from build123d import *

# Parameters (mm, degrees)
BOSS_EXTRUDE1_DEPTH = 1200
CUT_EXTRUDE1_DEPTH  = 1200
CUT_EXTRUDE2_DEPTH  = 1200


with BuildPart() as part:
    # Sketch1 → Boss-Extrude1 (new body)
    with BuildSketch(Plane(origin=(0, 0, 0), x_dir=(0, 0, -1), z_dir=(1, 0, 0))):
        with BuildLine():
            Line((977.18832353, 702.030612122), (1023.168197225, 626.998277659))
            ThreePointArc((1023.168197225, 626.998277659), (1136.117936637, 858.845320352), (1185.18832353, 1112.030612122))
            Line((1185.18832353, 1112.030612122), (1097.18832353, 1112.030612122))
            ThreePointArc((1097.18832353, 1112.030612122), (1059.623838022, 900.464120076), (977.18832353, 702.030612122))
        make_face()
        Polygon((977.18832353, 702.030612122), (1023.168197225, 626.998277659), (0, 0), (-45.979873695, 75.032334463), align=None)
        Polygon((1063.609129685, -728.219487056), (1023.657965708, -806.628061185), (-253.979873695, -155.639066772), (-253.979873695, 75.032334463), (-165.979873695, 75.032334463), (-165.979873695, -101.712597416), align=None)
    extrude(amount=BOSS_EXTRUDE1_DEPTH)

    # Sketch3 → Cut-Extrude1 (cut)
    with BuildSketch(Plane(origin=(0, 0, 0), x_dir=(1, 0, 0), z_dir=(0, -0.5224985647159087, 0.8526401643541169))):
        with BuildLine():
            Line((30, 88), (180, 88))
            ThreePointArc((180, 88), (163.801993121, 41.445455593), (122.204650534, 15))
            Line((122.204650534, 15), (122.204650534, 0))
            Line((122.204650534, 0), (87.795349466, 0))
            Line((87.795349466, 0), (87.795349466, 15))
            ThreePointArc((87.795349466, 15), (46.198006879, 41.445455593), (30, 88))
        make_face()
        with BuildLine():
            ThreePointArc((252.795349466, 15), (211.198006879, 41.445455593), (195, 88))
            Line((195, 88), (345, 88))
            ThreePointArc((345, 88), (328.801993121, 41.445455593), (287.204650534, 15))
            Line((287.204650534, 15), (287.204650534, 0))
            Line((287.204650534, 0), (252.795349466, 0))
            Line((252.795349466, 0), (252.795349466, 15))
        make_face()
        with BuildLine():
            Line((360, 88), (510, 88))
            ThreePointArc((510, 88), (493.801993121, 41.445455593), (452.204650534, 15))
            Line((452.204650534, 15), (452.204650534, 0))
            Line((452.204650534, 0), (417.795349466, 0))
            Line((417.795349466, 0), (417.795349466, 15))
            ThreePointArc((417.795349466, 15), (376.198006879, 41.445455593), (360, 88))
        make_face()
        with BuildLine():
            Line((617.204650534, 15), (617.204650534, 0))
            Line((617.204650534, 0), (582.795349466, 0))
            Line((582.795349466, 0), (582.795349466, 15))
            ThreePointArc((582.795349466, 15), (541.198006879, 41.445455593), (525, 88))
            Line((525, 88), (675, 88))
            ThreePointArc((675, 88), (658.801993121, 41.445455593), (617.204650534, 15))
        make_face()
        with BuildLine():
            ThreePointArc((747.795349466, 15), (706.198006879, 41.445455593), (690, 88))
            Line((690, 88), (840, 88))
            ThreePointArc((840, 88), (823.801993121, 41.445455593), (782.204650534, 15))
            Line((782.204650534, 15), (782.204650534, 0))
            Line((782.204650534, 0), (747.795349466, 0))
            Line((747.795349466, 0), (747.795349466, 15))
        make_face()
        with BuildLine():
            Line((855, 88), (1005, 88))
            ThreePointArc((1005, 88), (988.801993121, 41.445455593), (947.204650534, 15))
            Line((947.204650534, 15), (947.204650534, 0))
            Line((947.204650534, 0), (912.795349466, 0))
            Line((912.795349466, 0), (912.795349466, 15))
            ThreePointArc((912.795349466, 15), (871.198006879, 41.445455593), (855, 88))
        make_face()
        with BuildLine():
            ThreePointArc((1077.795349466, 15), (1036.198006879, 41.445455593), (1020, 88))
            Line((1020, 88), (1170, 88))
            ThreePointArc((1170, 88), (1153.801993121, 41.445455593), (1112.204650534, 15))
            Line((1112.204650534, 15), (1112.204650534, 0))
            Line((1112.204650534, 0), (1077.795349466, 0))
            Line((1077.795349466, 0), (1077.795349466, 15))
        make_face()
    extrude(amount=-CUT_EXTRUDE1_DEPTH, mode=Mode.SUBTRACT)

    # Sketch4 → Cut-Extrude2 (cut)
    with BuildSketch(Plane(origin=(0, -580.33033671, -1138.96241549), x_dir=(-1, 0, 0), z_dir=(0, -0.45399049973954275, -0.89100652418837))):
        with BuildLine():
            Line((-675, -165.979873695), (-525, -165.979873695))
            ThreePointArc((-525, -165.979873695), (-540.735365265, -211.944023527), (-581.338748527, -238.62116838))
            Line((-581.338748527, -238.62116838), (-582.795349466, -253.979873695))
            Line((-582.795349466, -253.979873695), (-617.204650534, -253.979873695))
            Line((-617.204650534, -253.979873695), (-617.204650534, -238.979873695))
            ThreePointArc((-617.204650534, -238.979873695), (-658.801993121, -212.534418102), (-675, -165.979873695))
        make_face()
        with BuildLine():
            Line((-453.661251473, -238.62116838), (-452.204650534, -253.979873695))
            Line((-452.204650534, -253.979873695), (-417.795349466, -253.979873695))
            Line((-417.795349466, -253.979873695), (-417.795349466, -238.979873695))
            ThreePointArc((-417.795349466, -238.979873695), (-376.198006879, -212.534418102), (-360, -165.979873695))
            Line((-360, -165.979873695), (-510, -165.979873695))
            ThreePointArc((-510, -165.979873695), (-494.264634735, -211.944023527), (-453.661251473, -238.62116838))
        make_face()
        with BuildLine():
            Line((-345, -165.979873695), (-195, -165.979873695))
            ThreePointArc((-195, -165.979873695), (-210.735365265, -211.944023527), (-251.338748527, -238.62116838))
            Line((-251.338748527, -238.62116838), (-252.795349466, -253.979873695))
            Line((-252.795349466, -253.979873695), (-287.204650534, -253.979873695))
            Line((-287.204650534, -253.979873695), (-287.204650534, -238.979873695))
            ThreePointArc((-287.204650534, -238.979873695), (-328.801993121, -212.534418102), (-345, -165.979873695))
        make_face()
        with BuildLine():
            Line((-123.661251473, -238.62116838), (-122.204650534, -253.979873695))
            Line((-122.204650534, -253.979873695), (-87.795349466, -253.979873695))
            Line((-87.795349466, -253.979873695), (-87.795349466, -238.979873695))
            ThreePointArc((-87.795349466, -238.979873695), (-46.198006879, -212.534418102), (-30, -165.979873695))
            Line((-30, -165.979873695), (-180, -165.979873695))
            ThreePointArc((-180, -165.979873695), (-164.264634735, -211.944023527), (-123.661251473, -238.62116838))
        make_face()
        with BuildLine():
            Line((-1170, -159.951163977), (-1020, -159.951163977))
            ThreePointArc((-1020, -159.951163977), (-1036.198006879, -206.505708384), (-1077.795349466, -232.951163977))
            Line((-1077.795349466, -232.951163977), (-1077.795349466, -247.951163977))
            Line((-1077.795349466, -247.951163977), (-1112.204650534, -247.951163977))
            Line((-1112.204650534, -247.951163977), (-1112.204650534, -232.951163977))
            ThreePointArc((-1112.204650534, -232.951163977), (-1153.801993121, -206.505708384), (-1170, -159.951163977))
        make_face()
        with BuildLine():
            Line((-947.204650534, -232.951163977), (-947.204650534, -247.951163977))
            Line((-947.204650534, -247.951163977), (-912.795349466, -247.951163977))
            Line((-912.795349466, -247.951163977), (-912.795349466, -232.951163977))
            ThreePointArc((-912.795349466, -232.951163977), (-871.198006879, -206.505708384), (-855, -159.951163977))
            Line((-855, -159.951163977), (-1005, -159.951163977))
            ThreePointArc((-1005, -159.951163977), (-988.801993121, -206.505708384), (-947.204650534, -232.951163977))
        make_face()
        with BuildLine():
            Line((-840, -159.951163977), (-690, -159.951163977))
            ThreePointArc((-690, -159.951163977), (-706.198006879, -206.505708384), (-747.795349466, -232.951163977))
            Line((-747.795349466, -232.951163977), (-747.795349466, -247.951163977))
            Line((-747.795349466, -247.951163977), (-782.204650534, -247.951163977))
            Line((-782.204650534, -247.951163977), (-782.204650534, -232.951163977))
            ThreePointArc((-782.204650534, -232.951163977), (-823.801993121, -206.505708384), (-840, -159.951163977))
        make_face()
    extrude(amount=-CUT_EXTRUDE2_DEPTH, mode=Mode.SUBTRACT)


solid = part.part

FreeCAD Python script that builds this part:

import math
import FreeCAD as App
import Part
import Sketcher
from FreeCAD import Vector
Q = App.Units.Quantity


def add_polygon(sketch, points):
    """Adds a closed chain of lines whose ends are joined by coincident constraints."""
    first, n = sketch.GeometryCount, len(points)
    for a, b in zip(points, points[1:] + points[:1]):
        sketch.addGeometry(Part.LineSegment(App.Vector(*a, 0), App.Vector(*b, 0)), False)
    for i in range(n):
        sketch.addConstraint(Sketcher.Constraint("Coincident", first + i, 2, first + (i + 1) % n, 1))

doc = App.newDocument("Part")
body = doc.addObject("PartDesign::Body", "Body")
body.AllowCompound = True

# Sketch on YZ plane
sketch1 = body.newObject("Sketcher::SketchObject", "Sketch")
sketch1.AttachmentSupport = (doc.getObject("YZ_Plane"), [""])
sketch1.MapMode = "FlatFace"
sketch1.addGeometry(Part.ArcOfCircle(Part.Circle(Vector(1171.732312, -199.442283, 0), Vector(0, 0, 1), 987.552302), math.radians(-123.476862), math.radians(-93.465885)), False)  # 0
sketch1.addGeometry(Part.LineSegment(Vector(1112.030612, -1185.188324, 0), Vector(1112.030612, -1097.188324, 0)), False)  # 1
sketch1.addGeometry(Part.ArcOfCircle(Part.Circle(Vector(1177.866331, -111.832952, 0), Vector(0, 0, 1), 987.552302), math.radians(-118.805215), math.radians(-93.82249)), False)  # 2
sketch1.addGeometry(Part.LineSegment(Vector(702.030612, -977.188324, 0), Vector(75.032334, 45.979874, 0)), False)  # 3
sketch1.addGeometry(Part.LineSegment(Vector(75.032334, 45.979874, 0), Vector(0, 0, 0)), False)  # 4
sketch1.addGeometry(Part.LineSegment(Vector(0, 0, 0), Vector(626.998278, -1023.168197, 0)), False)  # 5
add_polygon(sketch1, [(-806.628061, -1023.657966), (-728.219487, -1063.60913), (-101.712597, 165.979874), (75.032334, 165.979874), (75.032334, 253.979874), (-155.639067, 253.979874)])  # lines 6-11
sketch1.addConstraint([
    Sketcher.Constraint("Coincident", 0, 2, 1, 1),
    Sketcher.Constraint("Coincident", 1, 2, 2, 2),
    Sketcher.Constraint("Coincident", 2, 1, 3, 1),
    Sketcher.Constraint("Coincident", 3, 2, 4, 1),
    Sketcher.Constraint("Coincident", 4, 2, 5, 1),
    Sketcher.Constraint("Coincident", 5, 2, 0, 1),
    Sketcher.Constraint("Vertical", 1),
    Sketcher.Constraint("Horizontal", 8),
    Sketcher.Constraint("Vertical", 9),
    Sketcher.Constraint("Horizontal", 10),
    Sketcher.Constraint("Coincident", 4, 2, -1, 1),
    Sketcher.Constraint("Equal", 0, 2),
    Sketcher.Constraint("Perpendicular", 3, 4),
    Sketcher.Constraint("Perpendicular", 4, 5),
    Sketcher.Constraint("Perpendicular", 6, 7),
    Sketcher.Constraint("Parallel", 7, 11),
    Sketcher.Constraint("Vertical", 3, 2, 8, 2),
    Sketcher.Constraint("Equal", 1, 9),
    Sketcher.Constraint("Equal", 3, 5),
    Sketcher.Constraint("Equal", 4, 6),
    Sketcher.Constraint("DistanceY", 1, 1, 1, 2, 88.0),
    Sketcher.Constraint("Angle", 6, Q("-27 deg")),
    Sketcher.Constraint("Distance", 3, 1200.0),
    Sketcher.Constraint("Distance", 4, 88.0),
    Sketcher.Constraint("Distance", 7, 1380.0),
    Sketcher.Constraint("Angle", 3, Q("121.5 deg")),
    Sketcher.Constraint("DistanceY", 3, 2, 7, 2, 120.0),
    Sketcher.Constraint("DistanceX", 10, 2, 10, 1, 230.671401),
    Sketcher.Constraint("Radius", 0, 987.552302),
    Sketcher.Constraint("DistanceX", 1, 2, 0, 3, 59.701699),
    Sketcher.Constraint("DistanceX", 6, 2, 1, 2, 1840.250099),
])
pad1 = body.newObject("PartDesign::Pad", "Pad")
pad1.Profile = sketch1
pad1.Length = 1200

# Sketch on an angled plane
sketch2 = body.newObject("Sketcher::SketchObject", "Sketch001")
sketch2.Placement = App.Placement(Vector(0, 0, 0), App.Rotation(Vector(1, 0, 0), Vector(0, 0.852640164, 0.522498565), Vector(0, -0.522498565, 0.852640164), "ZXY"))
sketch2.addGeometry([
    Part.LineSegment(Vector(180, 88, 0), Vector(30, 88, 0)),  # 0
    Part.ArcOfCircle(Part.Circle(Vector(105, 88, 0), Vector(0, 0, 1), 75), math.radians(-180), math.radians(-103.261476)),  # 1
    Part.LineSegment(Vector(87.795349, 15, 0), Vector(87.795349, 0, 0)),  # 2
    Part.LineSegment(Vector(87.795349, 0, 0), Vector(122.204651, 0, 0)),  # 3
    Part.LineSegment(Vector(122.204651, 0, 0), Vector(122.204651, 15, 0)),  # 4
    Part.ArcOfCircle(Part.Circle(Vector(105, 88, 0), Vector(0, 0, 1), 75), math.radians(-76.738524), math.radians(0)),  # 5
    Part.ArcOfCircle(Part.Circle(Vector(270, 88, 0), Vector(0, 0, 1), 75), math.radians(-180), math.radians(-103.261476)),  # 6
    Part.LineSegment(Vector(252.795349, 15, 0), Vector(252.795349, 0, 0)),  # 7
    Part.LineSegment(Vector(252.795349, 0, 0), Vector(287.204651, 0, 0)),  # 8
    Part.LineSegment(Vector(287.204651, 0, 0), Vector(287.204651, 15, 0)),  # 9
    Part.ArcOfCircle(Part.Circle(Vector(270, 88, 0), Vector(0, 0, 1), 75), math.radians(-76.738524), math.radians(0)),  # 10
    Part.LineSegment(Vector(345, 88, 0), Vector(195, 88, 0)),  # 11
    Part.LineSegment(Vector(510, 88, 0), Vector(360, 88, 0)),  # 12
    Part.ArcOfCircle(Part.Circle(Vector(435, 88, 0), Vector(0, 0, 1), 75), math.radians(-180), math.radians(-103.261476)),  # 13
    Part.LineSegment(Vector(417.795349, 15, 0), Vector(417.795349, 0, 0)),  # 14
    Part.LineSegment(Vector(417.795349, 0, 0), Vector(452.204651, 0, 0)),  # 15
    Part.LineSegment(Vector(452.204651, 0, 0), Vector(452.204651, 15, 0)),  # 16
    Part.ArcOfCircle(Part.Circle(Vector(435, 88, 0), Vector(0, 0, 1), 75), math.radians(-76.738524), math.radians(0)),  # 17
    Part.LineSegment(Vector(617.204651, 0, 0), Vector(617.204651, 15, 0)),  # 18
    Part.ArcOfCircle(Part.Circle(Vector(600, 88, 0), Vector(0, 0, 1), 75), math.radians(-76.738524), math.radians(0)),  # 19
    Part.LineSegment(Vector(675, 88, 0), Vector(525, 88, 0)),  # 20
    Part.ArcOfCircle(Part.Circle(Vector(600, 88, 0), Vector(0, 0, 1), 75), math.radians(-180), math.radians(-103.261476)),  # 21
    Part.LineSegment(Vector(582.795349, 15, 0), Vector(582.795349, 0, 0)),  # 22
    Part.LineSegment(Vector(582.795349, 0, 0), Vector(617.204651, 0, 0)),  # 23
    Part.ArcOfCircle(Part.Circle(Vector(765, 88, 0), Vector(0, 0, 1), 75), math.radians(-180), math.radians(-103.261476)),  # 24
    Part.LineSegment(Vector(747.795349, 15, 0), Vector(747.795349, 0, 0)),  # 25
    Part.LineSegment(Vector(747.795349, 0, 0), Vector(782.204651, 0, 0)),  # 26
    Part.LineSegment(Vector(782.204651, 0, 0), Vector(782.204651, 15, 0)),  # 27
    Part.ArcOfCircle(Part.Circle(Vector(765, 88, 0), Vector(0, 0, 1), 75), math.radians(-76.738524), math.radians(0)),  # 28
    Part.LineSegment(Vector(840, 88, 0), Vector(690, 88, 0)),  # 29
    Part.LineSegment(Vector(1005, 88, 0), Vector(855, 88, 0)),  # 30
    Part.ArcOfCircle(Part.Circle(Vector(930, 88, 0), Vector(0, 0, 1), 75), math.radians(-180), math.radians(-103.261476)),  # 31
    Part.LineSegment(Vector(912.795349, 15, 0), Vector(912.795349, 0, 0)),  # 32
    Part.LineSegment(Vector(912.795349, 0, 0), Vector(947.204651, 0, 0)),  # 33
    Part.LineSegment(Vector(947.204651, 0, 0), Vector(947.204651, 15, 0)),  # 34
    Part.ArcOfCircle(Part.Circle(Vector(930, 88, 0), Vector(0, 0, 1), 75), math.radians(-76.738524), math.radians(0)),  # 35
    Part.ArcOfCircle(Part.Circle(Vector(1095, 88, 0), Vector(0, 0, 1), 75), math.radians(-180), math.radians(-103.261476)),  # 36
    Part.LineSegment(Vector(1077.795349, 15, 0), Vector(1077.795349, 0, 0)),  # 37
    Part.LineSegment(Vector(1077.795349, 0, 0), Vector(1112.204651, 0, 0)),  # 38
    Part.LineSegment(Vector(1112.204651, 0, 0), Vector(1112.204651, 15, 0)),  # 39
    Part.ArcOfCircle(Part.Circle(Vector(1095, 88, 0), Vector(0, 0, 1), 75), math.radians(-76.738524), math.radians(0)),  # 40
    Part.LineSegment(Vector(1170, 88, 0), Vector(1020, 88, 0)),  # 41
], False)
sketch2.addConstraint([
    Sketcher.Constraint("Coincident", 0, 2, 1, 1),
    Sketcher.Constraint("Coincident", 1, 2, 2, 1),
    Sketcher.Constraint("Coincident", 2, 2, 3, 1),
    Sketcher.Constraint("Coincident", 3, 2, 4, 1),
    Sketcher.Constraint("Coincident", 4, 2, 5, 1),
    Sketcher.Constraint("Coincident", 5, 2, 0, 1),
    Sketcher.Constraint("Coincident", 6, 2, 7, 1),
    Sketcher.Constraint("Coincident", 7, 2, 8, 1),
    Sketcher.Constraint("Coincident", 8, 2, 9, 1),
    Sketcher.Constraint("Coincident", 9, 2, 10, 1),
    Sketcher.Constraint("Coincident", 10, 2, 11, 1),
    Sketcher.Constraint("Coincident", 11, 2, 6, 1),
    Sketcher.Constraint("Coincident", 12, 2, 13, 1),
    Sketcher.Constraint("Coincident", 13, 2, 14, 1),
    Sketcher.Constraint("Coincident", 14, 2, 15, 1),
    Sketcher.Constraint("Coincident", 15, 2, 16, 1),
    Sketcher.Constraint("Coincident", 16, 2, 17, 1),
    Sketcher.Constraint("Coincident", 17, 2, 12, 1),
    Sketcher.Constraint("Coincident", 18, 2, 19, 1),
    Sketcher.Constraint("Coincident", 19, 2, 20, 1),
    Sketcher.Constraint("Coincident", 20, 2, 21, 1),
    Sketcher.Constraint("Coincident", 21, 2, 22, 1),
    Sketcher.Constraint("Coincident", 22, 2, 23, 1),
    Sketcher.Constraint("Coincident", 23, 2, 18, 1),
    Sketcher.Constraint("Coincident", 24, 2, 25, 1),
    Sketcher.Constraint("Coincident", 25, 2, 26, 1),
    Sketcher.Constraint("Coincident", 26, 2, 27, 1),
    Sketcher.Constraint("Coincident", 27, 2, 28, 1),
    Sketcher.Constraint("Coincident", 28, 2, 29, 1),
    Sketcher.Constraint("Coincident", 29, 2, 24, 1),
    Sketcher.Constraint("Coincident", 30, 2, 31, 1),
    Sketcher.Constraint("Coincident", 31, 2, 32, 1),
    Sketcher.Constraint("Coincident", 32, 2, 33, 1),
    Sketcher.Constraint("Coincident", 33, 2, 34, 1),
    Sketcher.Constraint("Coincident", 34, 2, 35, 1),
    Sketcher.Constraint("Coincident", 35, 2, 30, 1),
    Sketcher.Constraint("Coincident", 36, 2, 37, 1),
    Sketcher.Constraint("Coincident", 37, 2, 38, 1),
    Sketcher.Constraint("Coincident", 38, 2, 39, 1),
    Sketcher.Constraint("Coincident", 39, 2, 40, 1),
    Sketcher.Constraint("Coincident", 40, 2, 41, 1),
    Sketcher.Constraint("Coincident", 41, 2, 36, 1),
    Sketcher.Constraint("Horizontal", 0),
    Sketcher.Constraint("Vertical", 2),
    Sketcher.Constraint("Horizontal", 3),
    Sketcher.Constraint("Vertical", 4),
    Sketcher.Constraint("Vertical", 7),
    Sketcher.Constraint("Horizontal", 8),
    Sketcher.Constraint("Vertical", 9),
    Sketcher.Constraint("Horizontal", 11),
    Sketcher.Constraint("Horizontal", 12),
    Sketcher.Constraint("Vertical", 14),
    Sketcher.Constraint("Horizontal", 15),
    Sketcher.Constraint("Vertical", 16),
    Sketcher.Constraint("Vertical", 18),
    Sketcher.Constraint("Horizontal", 20),
    Sketcher.Constraint("Vertical", 22),
    Sketcher.Constraint("Horizontal", 23),
    Sketcher.Constraint("Vertical", 25),
    Sketcher.Constraint("Horizontal", 26),
    Sketcher.Constraint("Vertical", 27),
    Sketcher.Constraint("Horizontal", 29),
    Sketcher.Constraint("Horizontal", 30),
    Sketcher.Constraint("Vertical", 32),
    Sketcher.Constraint("Horizontal", 33),
    Sketcher.Constraint("Vertical", 34),
    Sketcher.Constraint("Vertical", 37),
    Sketcher.Constraint("Horizontal", 38),
    Sketcher.Constraint("Vertical", 39),
    Sketcher.Constraint("Horizontal", 41),
    Sketcher.Constraint("Coincident", 5, 3, 1, 3),
    Sketcher.Constraint("Coincident", 10, 3, 6, 3),
    Sketcher.Constraint("Coincident", 17, 3, 13, 3),
    Sketcher.Constraint("Coincident", 21, 3, 19, 3),
    Sketcher.Constraint("Coincident", 28, 3, 24, 3),
    Sketcher.Constraint("Coincident", 35, 3, 31, 3),
    Sketcher.Constraint("Coincident", 40, 3, 36, 3),
    Sketcher.Constraint("Equal", 1, 5),
    Sketcher.Constraint("Equal", 5, 6),
    Sketcher.Constraint("Equal", 6, 10),
    Sketcher.Constraint("Equal", 10, 13),
    Sketcher.Constraint("Equal", 13, 17),
    Sketcher.Constraint("Equal", 17, 19),
    Sketcher.Constraint("Equal", 19, 21),
    Sketcher.Constraint("Equal", 21, 24),
    Sketcher.Constraint("Equal", 24, 28),
    Sketcher.Constraint("Equal", 28, 31),
    Sketcher.Constraint("Equal", 31, 35),
    Sketcher.Constraint("Equal", 35, 36),
    Sketcher.Constraint("Equal", 36, 40),
    Sketcher.Constraint("PointOnObject", 2, 2, -1),
    Sketcher.Constraint("PointOnObject", 7, 2, -1),
    Sketcher.Constraint("PointOnObject", 14, 2, -1),
    Sketcher.Constraint("PointOnObject", 22, 2, -1),
    Sketcher.Constraint("PointOnObject", 25, 2, -1),
    Sketcher.Constraint("PointOnObject", 32, 2, -1),
    Sketcher.Constraint("PointOnObject", 37, 2, -1),
    Sketcher.Constraint("Horizontal", 5, 3, 6, 3),
    Sketcher.Constraint("Horizontal", 10, 3, 13, 3),
    Sketcher.Constraint("Horizontal", 17, 3, 19, 3),
    Sketcher.Constraint("Horizontal", 21, 3, 24, 3),
    Sketcher.Constraint("Horizontal", 28, 3, 31, 3),
    Sketcher.Constraint("Horizontal", 35, 3, 36, 3),
    Sketcher.Constraint("Horizontal", 40, 3, 0, 2),
    Sketcher.Constraint("Horizontal", 1, 2, 4, 2),
    Sketcher.Constraint("Horizontal", 4, 2, 6, 2),
    Sketcher.Constraint("Horizontal", 6, 2, 9, 2),
    Sketcher.Constraint("Horizontal", 5, 2, 10, 2),
    Sketcher.Constraint("Horizontal", 11, 2, 12, 2),
    Sketcher.Constraint("Horizontal", 9, 2, 13, 2),
    Sketcher.Constraint("Horizontal", 13, 2, 16, 2),
    Sketcher.Constraint("Horizontal", 16, 2, 18, 2),
    Sketcher.Constraint("Horizontal", 17, 2, 19, 2),
    Sketcher.Constraint("Horizontal", 18, 2, 21, 2),
    Sketcher.Constraint("Horizontal", 21, 2, 24, 2),
    Sketcher.Constraint("Horizontal", 24, 2, 27, 2),
    Sketcher.Constraint("Horizontal", 20, 2, 28, 2),
    Sketcher.Constraint("Horizontal", 29, 2, 30, 2),
    Sketcher.Constraint("Horizontal", 27, 2, 31, 2),
    Sketcher.Constraint("Horizontal", 31, 2, 34, 2),
    Sketcher.Constraint("Horizontal", 34, 2, 36, 2),
    Sketcher.Constraint("Horizontal", 36, 2, 39, 2),
    Sketcher.Constraint("Horizontal", 35, 2, 40, 2),
    Sketcher.Constraint("Radius", 1, 75.0),
    Sketcher.Constraint("DistanceY", 2, 2, 2, 1, 15.0),
    Sketcher.Constraint("DistanceX", -1, 1, 1, 3, 105.0),
    Sketcher.Constraint("DistanceY", -1, 1, 1, 3, 88.0),
    Sketcher.Constraint("DistanceX", -1, 1, 6, 3, 270.0),
    Sketcher.Constraint("DistanceX", -1, 1, 13, 3, 435.0),
    Sketcher.Constraint("DistanceX", -1, 1, 19, 3, 600.0),
    Sketcher.Constraint("DistanceX", -1, 1, 24, 3, 765.0),
    Sketcher.Constraint("DistanceX", -1, 1, 31, 3, 930.0),
    Sketcher.Constraint("DistanceX", -1, 1, 36, 3, 1095.0),
])
pocket1 = body.newObject("PartDesign::Pocket", "Pocket")
pocket1.Profile = sketch2
pocket1.Length = 1200

# Sketch on an angled plane
sketch3 = body.newObject("Sketcher::SketchObject", "Sketch002")
sketch3.Placement = App.Placement(Vector(0, -580.330337, -1138.962415), App.Rotation(Vector(-1, 0, 0), Vector(0, 0.891006524, -0.4539905), Vector(0, -0.4539905, -0.891006524), "ZXY"))
sketch3.addGeometry([
    Part.LineSegment(Vector(-525, -165.979874, 0), Vector(-675, -165.979874, 0)),  # 0
    Part.ArcOfCircle(Part.Circle(Vector(-600, -165.979874, 0), Vector(0, 0, 1), 75), math.radians(-180), math.radians(-103.261476)),  # 1
    Part.LineSegment(Vector(-617.204651, -238.979874, 0), Vector(-617.204651, -253.979874, 0)),  # 2
    Part.LineSegment(Vector(-617.204651, -253.979874, 0), Vector(-582.795349, -253.979874, 0)),  # 3
    Part.LineSegment(Vector(-582.795349, -253.979874, 0), Vector(-581.338749, -238.621168, 0)),  # 4
    Part.ArcOfCircle(Part.Circle(Vector(-600, -165.979874, 0), Vector(0, 0, 1), 75), math.radians(-75.592499), math.radians(0)),  # 5
    Part.LineSegment(Vector(-453.661251, -238.621168, 0), Vector(-452.204651, -253.979874, 0)),  # 6
    Part.LineSegment(Vector(-452.204651, -253.979874, 0), Vector(-417.795349, -253.979874, 0)),  # 7
    Part.LineSegment(Vector(-417.795349, -253.979874, 0), Vector(-417.795349, -238.979874, 0)),  # 8
    Part.ArcOfCircle(Part.Circle(Vector(-435, -165.979874, 0), Vector(0, 0, 1), 75), math.radians(-76.738524), math.radians(0)),  # 9
    Part.LineSegment(Vector(-360, -165.979874, 0), Vector(-510, -165.979874, 0)),  # 10
    Part.ArcOfCircle(Part.Circle(Vector(-435, -165.979874, 0), Vector(0, 0, 1), 75), math.radians(180), math.radians(255.592499)),  # 11
    Part.LineSegment(Vector(-195, -165.979874, 0), Vector(-345, -165.979874, 0)),  # 12
    Part.ArcOfCircle(Part.Circle(Vector(-270, -165.979874, 0), Vector(0, 0, 1), 75), math.radians(-180), math.radians(-103.261476)),  # 13
    Part.LineSegment(Vector(-287.204651, -238.979874, 0), Vector(-287.204651, -253.979874, 0)),  # 14
    Part.LineSegment(Vector(-287.204651, -253.979874, 0), Vector(-252.795349, -253.979874, 0)),  # 15
    Part.LineSegment(Vector(-252.795349, -253.979874, 0), Vector(-251.338749, -238.621168, 0)),  # 16
    Part.ArcOfCircle(Part.Circle(Vector(-270, -165.979874, 0), Vector(0, 0, 1), 75), math.radians(-75.592499), math.radians(0)),  # 17
    Part.LineSegment(Vector(-123.661251, -238.621168, 0), Vector(-122.204651, -253.979874, 0)),  # 18
    Part.LineSegment(Vector(-122.204651, -253.979874, 0), Vector(-87.795349, -253.979874, 0)),  # 19
    Part.LineSegment(Vector(-87.795349, -253.979874, 0), Vector(-87.795349, -238.979874, 0)),  # 20
    Part.ArcOfCircle(Part.Circle(Vector(-105, -165.979874, 0), Vector(0, 0, 1), 75), math.radians(-76.738524), math.radians(0)),  # 21
    Part.LineSegment(Vector(-30, -165.979874, 0), Vector(-180, -165.979874, 0)),  # 22
    Part.ArcOfCircle(Part.Circle(Vector(-105, -165.979874, 0), Vector(0, 0, 1), 75), math.radians(180), math.radians(255.592499)),  # 23
    Part.LineSegment(Vector(-1020, -159.951164, 0), Vector(-1170, -159.951164, 0)),  # 24
    Part.ArcOfCircle(Part.Circle(Vector(-1095, -159.951164, 0), Vector(0, 0, 1), 75), math.radians(-180), math.radians(-103.261476)),  # 25
    Part.LineSegment(Vector(-1112.204651, -232.951164, 0), Vector(-1112.204651, -247.951164, 0)),  # 26
    Part.LineSegment(Vector(-1112.204651, -247.951164, 0), Vector(-1077.795349, -247.951164, 0)),  # 27
    Part.LineSegment(Vector(-1077.795349, -247.951164, 0), Vector(-1077.795349, -232.951164, 0)),  # 28
    Part.ArcOfCircle(Part.Circle(Vector(-1095, -159.951164, 0), Vector(0, 0, 1), 75), math.radians(-76.738524), math.radians(0)),  # 29
    Part.LineSegment(Vector(-947.204651, -232.951164, 0), Vector(-947.204651, -247.951164, 0)),  # 30
    Part.LineSegment(Vector(-947.204651, -247.951164, 0), Vector(-912.795349, -247.951164, 0)),  # 31
    Part.LineSegment(Vector(-912.795349, -247.951164, 0), Vector(-912.795349, -232.951164, 0)),  # 32
    Part.ArcOfCircle(Part.Circle(Vector(-930, -159.951164, 0), Vector(0, 0, 1), 75), math.radians(-76.738524), math.radians(0)),  # 33
    Part.LineSegment(Vector(-855, -159.951164, 0), Vector(-1005, -159.951164, 0)),  # 34
    Part.ArcOfCircle(Part.Circle(Vector(-930, -159.951164, 0), Vector(0, 0, 1), 75), math.radians(-180), math.radians(-103.261476)),  # 35
    Part.LineSegment(Vector(-690, -159.951164, 0), Vector(-840, -159.951164, 0)),  # 36
    Part.ArcOfCircle(Part.Circle(Vector(-765, -159.951164, 0), Vector(0, 0, 1), 75), math.radians(-180), math.radians(-103.261476)),  # 37
    Part.LineSegment(Vector(-782.204651, -232.951164, 0), Vector(-782.204651, -247.951164, 0)),  # 38
    Part.LineSegment(Vector(-782.204651, -247.951164, 0), Vector(-747.795349, -247.951164, 0)),  # 39
    Part.LineSegment(Vector(-747.795349, -247.951164, 0), Vector(-747.795349, -232.951164, 0)),  # 40
    Part.ArcOfCircle(Part.Circle(Vector(-765, -159.951164, 0), Vector(0, 0, 1), 75), math.radians(-76.738524), math.radians(0)),  # 41
], False)
sketch3.addConstraint([
    Sketcher.Constraint("Coincident", 0, 2, 1, 1),
    Sketcher.Constraint("Coincident", 1, 2, 2, 1),
    Sketcher.Constraint("Coincident", 2, 2, 3, 1),
    Sketcher.Constraint("Coincident", 3, 2, 4, 1),
    Sketcher.Constraint("Coincident", 4, 2, 5, 1),
    Sketcher.Constraint("Coincident", 5, 2, 0, 1),
    Sketcher.Constraint("Coincident", 6, 2, 7, 1),
    Sketcher.Constraint("Coincident", 7, 2, 8, 1),
    Sketcher.Constraint("Coincident", 8, 2, 9, 1),
    Sketcher.Constraint("Coincident", 9, 2, 10, 1),
    Sketcher.Constraint("Coincident", 10, 2, 11, 1),
    Sketcher.Constraint("Coincident", 11, 2, 6, 1),
    Sketcher.Constraint("Coincident", 12, 2, 13, 1),
    Sketcher.Constraint("Coincident", 13, 2, 14, 1),
    Sketcher.Constraint("Coincident", 14, 2, 15, 1),
    Sketcher.Constraint("Coincident", 15, 2, 16, 1),
    Sketcher.Constraint("Coincident", 16, 2, 17, 1),
    Sketcher.Constraint("Coincident", 17, 2, 12, 1),
    Sketcher.Constraint("Coincident", 18, 2, 19, 1),
    Sketcher.Constraint("Coincident", 19, 2, 20, 1),
    Sketcher.Constraint("Coincident", 20, 2, 21, 1),
    Sketcher.Constraint("Coincident", 21, 2, 22, 1),
    Sketcher.Constraint("Coincident", 22, 2, 23, 1),
    Sketcher.Constraint("Coincident", 23, 2, 18, 1),
    Sketcher.Constraint("Coincident", 24, 2, 25, 1),
    Sketcher.Constraint("Coincident", 25, 2, 26, 1),
    Sketcher.Constraint("Coincident", 26, 2, 27, 1),
    Sketcher.Constraint("Coincident", 27, 2, 28, 1),
    Sketcher.Constraint("Coincident", 28, 2, 29, 1),
    Sketcher.Constraint("Coincident", 29, 2, 24, 1),
    Sketcher.Constraint("Coincident", 30, 2, 31, 1),
    Sketcher.Constraint("Coincident", 31, 2, 32, 1),
    Sketcher.Constraint("Coincident", 32, 2, 33, 1),
    Sketcher.Constraint("Coincident", 33, 2, 34, 1),
    Sketcher.Constraint("Coincident", 34, 2, 35, 1),
    Sketcher.Constraint("Coincident", 35, 2, 30, 1),
    Sketcher.Constraint("Coincident", 36, 2, 37, 1),
    Sketcher.Constraint("Coincident", 37, 2, 38, 1),
    Sketcher.Constraint("Coincident", 38, 2, 39, 1),
    Sketcher.Constraint("Coincident", 39, 2, 40, 1),
    Sketcher.Constraint("Coincident", 40, 2, 41, 1),
    Sketcher.Constraint("Coincident", 41, 2, 36, 1),
    Sketcher.Constraint("Horizontal", 0),
    Sketcher.Constraint("Vertical", 2),
    Sketcher.Constraint("Horizontal", 3),
    Sketcher.Constraint("Horizontal", 7),
    Sketcher.Constraint("Vertical", 8),
    Sketcher.Constraint("Horizontal", 10),
    Sketcher.Constraint("Horizontal", 12),
    Sketcher.Constraint("Vertical", 14),
    Sketcher.Constraint("Horizontal", 15),
    Sketcher.Constraint("Horizontal", 19),
    Sketcher.Constraint("Vertical", 20),
    Sketcher.Constraint("Horizontal", 22),
    Sketcher.Constraint("Horizontal", 24),
    Sketcher.Constraint("Vertical", 26),
    Sketcher.Constraint("Horizontal", 27),
    Sketcher.Constraint("Vertical", 28),
    Sketcher.Constraint("Vertical", 30),
    Sketcher.Constraint("Horizontal", 31),
    Sketcher.Constraint("Vertical", 32),
    Sketcher.Constraint("Horizontal", 34),
    Sketcher.Constraint("Horizontal", 36),
    Sketcher.Constraint("Vertical", 38),
    Sketcher.Constraint("Horizontal", 39),
    Sketcher.Constraint("Vertical", 40),
    Sketcher.Constraint("Coincident", 5, 3, 1, 3),
    Sketcher.Constraint("Coincident", 11, 3, 9, 3),
    Sketcher.Constraint("Coincident", 17, 3, 13, 3),
    Sketcher.Constraint("Coincident", 23, 3, 21, 3),
    Sketcher.Constraint("Coincident", 29, 3, 25, 3),
    Sketcher.Constraint("Coincident", 35, 3, 33, 3),
    Sketcher.Constraint("Coincident", 41, 3, 37, 3),
    Sketcher.Constraint("Equal", 1, 5),
    Sketcher.Constraint("Equal", 5, 9),
    Sketcher.Constraint("Equal", 9, 11),
    Sketcher.Constraint("Equal", 11, 13),
    Sketcher.Constraint("Equal", 13, 17),
    Sketcher.Constraint("Equal", 17, 21),
    Sketcher.Constraint("Equal", 21, 23),
    Sketcher.Constraint("Equal", 23, 25),
    Sketcher.Constraint("Equal", 25, 29),
    Sketcher.Constraint("Equal", 29, 33),
    Sketcher.Constraint("Equal", 33, 35),
    Sketcher.Constraint("Equal", 35, 37),
    Sketcher.Constraint("Equal", 37, 41),
    Sketcher.Constraint("Parallel", 4, 16),
    Sketcher.Constraint("Parallel", 6, 18),
    Sketcher.Constraint("Horizontal", 5, 3, 9, 3),
    Sketcher.Constraint("Horizontal", 11, 3, 13, 3),
    Sketcher.Constraint("Horizontal", 17, 3, 21, 3),
    Sketcher.Constraint("Horizontal", 29, 3, 33, 3),
    Sketcher.Constraint("Horizontal", 35, 3, 37, 3),
    Sketcher.Constraint("Horizontal", 23, 3, 0, 2),
    Sketcher.Constraint("Horizontal", 3, 2, 6, 2),
    Sketcher.Constraint("Horizontal", 1, 2, 8, 2),
    Sketcher.Constraint("Horizontal", 5, 2, 9, 2),
    Sketcher.Constraint("Horizontal", 4, 2, 11, 2),
    Sketcher.Constraint("Horizontal", 10, 2, 12, 2),
    Sketcher.Constraint("Horizontal", 8, 2, 13, 2),
    Sketcher.Constraint("Horizontal", 7, 2, 14, 2),
    Sketcher.Constraint("Horizontal", 11, 2, 16, 2),
    Sketcher.Constraint("Horizontal", 15, 2, 18, 2),
    Sketcher.Constraint("Horizontal", 13, 2, 20, 2),
    Sketcher.Constraint("Horizontal", 17, 2, 21, 2),
    Sketcher.Constraint("Horizontal", 16, 2, 23, 2),
    Sketcher.Constraint("Horizontal", 41, 3, 24, 2),
    Sketcher.Constraint("Horizontal", 25, 2, 28, 2),
    Sketcher.Constraint("Horizontal", 27, 2, 30, 2),
    Sketcher.Constraint("Horizontal", 28, 2, 32, 2),
    Sketcher.Constraint("Horizontal", 29, 2, 33, 2),
    Sketcher.Constraint("Horizontal", 32, 2, 35, 2),
    Sketcher.Constraint("Horizontal", 34, 2, 36, 2),
    Sketcher.Constraint("Horizontal", 35, 2, 37, 2),
    Sketcher.Constraint("Horizontal", 31, 2, 38, 2),
    Sketcher.Constraint("Horizontal", 37, 2, 40, 2),
    Sketcher.Constraint("Equal", 3, 7),
    Sketcher.Constraint("Equal", 19, 27),
    Sketcher.Constraint("Equal", 20, 26),
    Sketcher.Constraint("Radius", 1, 75.0),
    Sketcher.Constraint("DistanceY", 2, 2, 2, 1, 15.0),
    Sketcher.Constraint("DistanceX", 1, 3, -1, 1, 600.0),
    Sketcher.Constraint("DistanceX", 9, 3, -1, 1, 435.0),
    Sketcher.Constraint("DistanceX", 13, 3, -1, 1, 270.0),
    Sketcher.Constraint("DistanceX", 21, 3, -1, 1, 105.0),
    Sketcher.Constraint("DistanceX", 25, 3, -1, 1, 1095.0),
    Sketcher.Constraint("DistanceX", 33, 3, -1, 1, 930.0),
    Sketcher.Constraint("DistanceX", 37, 3, -1, 1, 765.0),
    Sketcher.Constraint("DistanceY", 1, 2, 5, 3, 73.0),
    Sketcher.Constraint("DistanceY", 26, 2, 29, 3, 88.0),
    Sketcher.Constraint("DistanceX", 3, 2, 4, 2, 1.456601),
    Sketcher.Constraint("DistanceY", 4, 2, -1, 1, 238.621168),
    Sketcher.Constraint("DistanceY", 5, 3, 25, 3, 6.02871),
])
pocket2 = body.newObject("PartDesign::Pocket", "Pocket001")
pocket2.Profile = sketch3
pocket2.Length = 1200

doc.recompute()
